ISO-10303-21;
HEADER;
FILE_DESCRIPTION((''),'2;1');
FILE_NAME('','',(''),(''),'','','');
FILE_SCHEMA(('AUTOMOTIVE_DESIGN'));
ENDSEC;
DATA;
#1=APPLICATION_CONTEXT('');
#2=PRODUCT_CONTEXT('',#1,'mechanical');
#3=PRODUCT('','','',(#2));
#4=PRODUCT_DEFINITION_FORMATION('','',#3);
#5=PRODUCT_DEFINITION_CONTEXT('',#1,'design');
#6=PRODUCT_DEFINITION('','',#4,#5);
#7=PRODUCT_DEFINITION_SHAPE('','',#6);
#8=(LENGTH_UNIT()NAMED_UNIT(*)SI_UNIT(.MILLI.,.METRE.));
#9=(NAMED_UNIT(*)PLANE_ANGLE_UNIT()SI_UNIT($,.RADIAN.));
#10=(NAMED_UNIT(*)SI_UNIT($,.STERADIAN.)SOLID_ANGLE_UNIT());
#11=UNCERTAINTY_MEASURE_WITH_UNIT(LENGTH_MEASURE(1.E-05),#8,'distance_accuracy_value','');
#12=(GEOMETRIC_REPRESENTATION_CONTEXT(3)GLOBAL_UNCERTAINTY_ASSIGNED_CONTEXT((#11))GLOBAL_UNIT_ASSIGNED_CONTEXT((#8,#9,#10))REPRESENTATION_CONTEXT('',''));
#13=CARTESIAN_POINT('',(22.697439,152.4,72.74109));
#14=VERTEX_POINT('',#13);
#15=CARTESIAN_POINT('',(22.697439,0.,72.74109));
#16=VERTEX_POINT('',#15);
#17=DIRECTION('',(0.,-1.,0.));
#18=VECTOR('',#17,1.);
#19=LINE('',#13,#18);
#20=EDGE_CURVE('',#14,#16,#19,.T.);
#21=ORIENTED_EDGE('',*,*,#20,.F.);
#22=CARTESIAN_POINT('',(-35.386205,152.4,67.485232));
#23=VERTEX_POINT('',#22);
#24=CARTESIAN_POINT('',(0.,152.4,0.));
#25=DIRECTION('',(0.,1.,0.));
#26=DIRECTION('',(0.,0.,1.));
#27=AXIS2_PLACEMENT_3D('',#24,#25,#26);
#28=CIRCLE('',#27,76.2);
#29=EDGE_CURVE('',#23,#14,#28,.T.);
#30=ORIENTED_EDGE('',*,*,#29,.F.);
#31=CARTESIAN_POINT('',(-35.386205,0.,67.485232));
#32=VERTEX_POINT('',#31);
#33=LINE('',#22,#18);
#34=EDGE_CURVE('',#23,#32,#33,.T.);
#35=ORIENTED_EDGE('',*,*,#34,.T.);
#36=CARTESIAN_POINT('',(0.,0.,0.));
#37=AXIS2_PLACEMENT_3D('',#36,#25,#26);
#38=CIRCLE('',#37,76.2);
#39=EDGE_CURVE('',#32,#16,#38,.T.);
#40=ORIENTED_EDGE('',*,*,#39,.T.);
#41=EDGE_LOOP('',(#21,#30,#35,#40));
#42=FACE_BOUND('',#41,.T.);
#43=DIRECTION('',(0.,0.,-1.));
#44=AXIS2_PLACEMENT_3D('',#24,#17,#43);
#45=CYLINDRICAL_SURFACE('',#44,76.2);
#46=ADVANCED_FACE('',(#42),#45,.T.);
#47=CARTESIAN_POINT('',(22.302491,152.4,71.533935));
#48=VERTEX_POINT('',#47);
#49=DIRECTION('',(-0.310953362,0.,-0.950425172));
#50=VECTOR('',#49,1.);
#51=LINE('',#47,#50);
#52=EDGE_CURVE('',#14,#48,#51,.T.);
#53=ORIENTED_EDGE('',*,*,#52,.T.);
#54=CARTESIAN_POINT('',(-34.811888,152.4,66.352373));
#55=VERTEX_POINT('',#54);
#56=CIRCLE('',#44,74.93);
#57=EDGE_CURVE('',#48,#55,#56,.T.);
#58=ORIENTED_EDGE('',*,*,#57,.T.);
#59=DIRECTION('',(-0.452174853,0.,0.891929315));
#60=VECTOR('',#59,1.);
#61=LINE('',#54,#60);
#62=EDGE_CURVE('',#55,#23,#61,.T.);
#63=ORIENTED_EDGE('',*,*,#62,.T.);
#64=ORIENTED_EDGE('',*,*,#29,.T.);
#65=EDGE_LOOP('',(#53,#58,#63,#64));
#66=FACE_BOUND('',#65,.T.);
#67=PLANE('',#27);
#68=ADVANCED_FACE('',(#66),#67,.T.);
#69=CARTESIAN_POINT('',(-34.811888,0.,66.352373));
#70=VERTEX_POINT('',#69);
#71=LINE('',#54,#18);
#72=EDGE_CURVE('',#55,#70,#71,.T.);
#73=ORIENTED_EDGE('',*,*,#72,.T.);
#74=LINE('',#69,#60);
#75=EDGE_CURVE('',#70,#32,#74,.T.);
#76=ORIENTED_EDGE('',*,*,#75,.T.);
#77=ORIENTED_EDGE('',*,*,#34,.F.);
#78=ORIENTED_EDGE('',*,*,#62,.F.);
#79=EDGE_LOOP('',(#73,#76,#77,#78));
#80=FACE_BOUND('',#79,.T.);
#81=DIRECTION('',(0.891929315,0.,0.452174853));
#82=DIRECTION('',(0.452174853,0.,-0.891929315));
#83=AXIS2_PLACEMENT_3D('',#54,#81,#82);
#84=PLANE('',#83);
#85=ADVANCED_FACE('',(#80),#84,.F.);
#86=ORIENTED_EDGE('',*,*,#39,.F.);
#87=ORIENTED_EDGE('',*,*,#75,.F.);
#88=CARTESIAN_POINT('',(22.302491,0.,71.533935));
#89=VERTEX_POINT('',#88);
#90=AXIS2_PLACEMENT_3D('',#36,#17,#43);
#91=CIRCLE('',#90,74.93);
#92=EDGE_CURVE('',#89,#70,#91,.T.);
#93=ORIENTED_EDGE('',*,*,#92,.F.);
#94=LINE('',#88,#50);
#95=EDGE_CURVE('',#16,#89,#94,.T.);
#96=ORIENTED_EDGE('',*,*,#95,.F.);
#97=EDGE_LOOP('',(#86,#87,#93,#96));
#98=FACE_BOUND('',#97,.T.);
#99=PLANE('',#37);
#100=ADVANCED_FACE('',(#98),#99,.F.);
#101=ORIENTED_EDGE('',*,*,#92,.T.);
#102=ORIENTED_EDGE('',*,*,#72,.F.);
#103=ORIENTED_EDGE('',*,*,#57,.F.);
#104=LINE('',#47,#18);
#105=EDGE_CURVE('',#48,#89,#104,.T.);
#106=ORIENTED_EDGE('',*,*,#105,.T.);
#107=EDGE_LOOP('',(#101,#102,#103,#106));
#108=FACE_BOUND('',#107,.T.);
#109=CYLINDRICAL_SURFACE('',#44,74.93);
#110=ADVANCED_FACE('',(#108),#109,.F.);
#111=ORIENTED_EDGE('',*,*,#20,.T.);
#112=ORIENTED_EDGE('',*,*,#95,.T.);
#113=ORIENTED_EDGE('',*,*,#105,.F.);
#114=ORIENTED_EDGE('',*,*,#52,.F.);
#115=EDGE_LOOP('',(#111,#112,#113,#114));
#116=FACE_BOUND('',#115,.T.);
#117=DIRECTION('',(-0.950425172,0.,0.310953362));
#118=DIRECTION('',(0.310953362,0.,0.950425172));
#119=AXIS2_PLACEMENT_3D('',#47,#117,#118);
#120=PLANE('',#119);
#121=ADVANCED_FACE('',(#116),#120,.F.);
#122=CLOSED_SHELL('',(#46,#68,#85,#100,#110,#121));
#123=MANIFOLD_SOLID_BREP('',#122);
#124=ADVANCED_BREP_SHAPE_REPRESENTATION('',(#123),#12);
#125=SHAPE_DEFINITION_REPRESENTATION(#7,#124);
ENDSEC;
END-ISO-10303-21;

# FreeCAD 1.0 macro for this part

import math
import FreeCAD as App
import Part
import Sketcher

V = App.Vector
Q = App.Units.Quantity

doc = App.newDocument("Part")
body = doc.addObject("PartDesign::Body", "Body")

# Sketch on XZ plane
sketch1 = body.newObject("Sketcher::SketchObject", "Sketch")
sketch1.AttachmentSupport = (doc.getObject("XZ_Plane"), [""])
sketch1.MapMode = "FlatFace"
sketch1.addGeometry([
    Part.LineSegment(V(-34.811888, 66.352373, 0), V(-35.386205, 67.485232, 0)),
    Part.ArcOfCircle(Part.Circle(V(0, 0, 0), V(0, 0, 1), 76.2), math.radians(72.670485), math.radians(117.670485)),
    Part.LineSegment(V(22.697439, 72.74109, 0), V(22.302491, 71.533935, 0)),
    Part.ArcOfCircle(Part.Circle(V(0, 0, 0), V(0, 0, 1), 74.93), math.radians(72.683828), math.radians(117.683828)),
], False)
sketch1.addConstraint([
    Sketcher.Constraint("Coincident", 0, 2, 1, 2),
    Sketcher.Constraint("Coincident", 1, 1, 2, 1),
    Sketcher.Constraint("Coincident", 2, 2, 3, 1),
    Sketcher.Constraint("Coincident", 3, 2, 0, 1),
    Sketcher.Constraint("Coincident", 1, 3, -1, 1),
    Sketcher.Constraint("Coincident", 3, 3, -1, 1),
    Sketcher.Constraint("Equal", 0, 2),
    Sketcher.Constraint("Radius", 1, Q("3 in")),
    Sketcher.Constraint("Radius", 3, Q("2.95 in")),
    Sketcher.Constraint("DistanceX", -1, 1, 1, 1, Q("0.8936 in")),
    Sketcher.Constraint("Distance", 0, 1.270122),
    Sketcher.Constraint("DistanceY", -1, 1, 0, 2, 67.485232),
])
pad1 = body.newObject("PartDesign::Pad", "Pad")
pad1.Profile = sketch1
pad1.Length = Q("6 in")
pad1.Reversed = True

doc.recompute()
